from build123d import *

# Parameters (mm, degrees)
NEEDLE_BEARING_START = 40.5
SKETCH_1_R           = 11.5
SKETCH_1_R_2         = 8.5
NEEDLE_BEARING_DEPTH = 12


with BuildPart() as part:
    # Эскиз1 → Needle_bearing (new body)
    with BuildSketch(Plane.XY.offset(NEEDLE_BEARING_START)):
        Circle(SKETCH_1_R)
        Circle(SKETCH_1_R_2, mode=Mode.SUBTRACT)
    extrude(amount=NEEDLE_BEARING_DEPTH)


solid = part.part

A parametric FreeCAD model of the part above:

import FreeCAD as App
import Part
import Sketcher
from FreeCAD import Vector

doc = App.newDocument("Part")
params = doc.addObject("Spreadsheet::Sheet", "Params")
for row, (alias, value) in enumerate([
    ("sketch1_diameter", "23 mm"),
    ("sketch1_diameter2", "17 mm"),
    ("pad1_length", "12 mm"),
], start=1):
    params.set(f"A{row}", alias)
    params.set(f"B{row}", "=" + value)
    params.setAlias(f"B{row}", alias)

body = doc.addObject("PartDesign::Body", "Body")

# Sketch on XY plane
sketch1 = body.newObject("Sketcher::SketchObject", "Sketch")
sketch1.AttachmentSupport = (doc.getObject("XY_Plane"), [""])
sketch1.MapMode = "FlatFace"
sketch1.AttachmentOffset = App.Placement(Vector(0, 0, 40.5), App.Rotation())
sketch1.addGeometry(Part.Circle(Vector(0, 0, 0), Vector(0, 0, 1), 11.5), False)
sketch1.addGeometry(Part.Circle(Vector(0, 0, 0), Vector(0, 0, 1), 8.5), False)
sketch1.addConstraint(Sketcher.Constraint("Coincident", 0, 3, -1, 1))
sketch1.addConstraint(Sketcher.Constraint("Coincident", 1, 3, -1, 1))
sketch1.addConstraint(Sketcher.Constraint("Diameter", 0, 23.0))
sketch1.addConstraint(Sketcher.Constraint("Diameter", 1, 17.0))
sketch1.setExpression("Constraints[2]", "Params.sketch1_diameter")
sketch1.setExpression("Constraints[3]", "Params.sketch1_diameter2")
pad1 = body.newObject("PartDesign::Pad", "Pad")
pad1.Profile = sketch1
pad1.setExpression("Length", "Params.pad1_length")

doc.recompute()
